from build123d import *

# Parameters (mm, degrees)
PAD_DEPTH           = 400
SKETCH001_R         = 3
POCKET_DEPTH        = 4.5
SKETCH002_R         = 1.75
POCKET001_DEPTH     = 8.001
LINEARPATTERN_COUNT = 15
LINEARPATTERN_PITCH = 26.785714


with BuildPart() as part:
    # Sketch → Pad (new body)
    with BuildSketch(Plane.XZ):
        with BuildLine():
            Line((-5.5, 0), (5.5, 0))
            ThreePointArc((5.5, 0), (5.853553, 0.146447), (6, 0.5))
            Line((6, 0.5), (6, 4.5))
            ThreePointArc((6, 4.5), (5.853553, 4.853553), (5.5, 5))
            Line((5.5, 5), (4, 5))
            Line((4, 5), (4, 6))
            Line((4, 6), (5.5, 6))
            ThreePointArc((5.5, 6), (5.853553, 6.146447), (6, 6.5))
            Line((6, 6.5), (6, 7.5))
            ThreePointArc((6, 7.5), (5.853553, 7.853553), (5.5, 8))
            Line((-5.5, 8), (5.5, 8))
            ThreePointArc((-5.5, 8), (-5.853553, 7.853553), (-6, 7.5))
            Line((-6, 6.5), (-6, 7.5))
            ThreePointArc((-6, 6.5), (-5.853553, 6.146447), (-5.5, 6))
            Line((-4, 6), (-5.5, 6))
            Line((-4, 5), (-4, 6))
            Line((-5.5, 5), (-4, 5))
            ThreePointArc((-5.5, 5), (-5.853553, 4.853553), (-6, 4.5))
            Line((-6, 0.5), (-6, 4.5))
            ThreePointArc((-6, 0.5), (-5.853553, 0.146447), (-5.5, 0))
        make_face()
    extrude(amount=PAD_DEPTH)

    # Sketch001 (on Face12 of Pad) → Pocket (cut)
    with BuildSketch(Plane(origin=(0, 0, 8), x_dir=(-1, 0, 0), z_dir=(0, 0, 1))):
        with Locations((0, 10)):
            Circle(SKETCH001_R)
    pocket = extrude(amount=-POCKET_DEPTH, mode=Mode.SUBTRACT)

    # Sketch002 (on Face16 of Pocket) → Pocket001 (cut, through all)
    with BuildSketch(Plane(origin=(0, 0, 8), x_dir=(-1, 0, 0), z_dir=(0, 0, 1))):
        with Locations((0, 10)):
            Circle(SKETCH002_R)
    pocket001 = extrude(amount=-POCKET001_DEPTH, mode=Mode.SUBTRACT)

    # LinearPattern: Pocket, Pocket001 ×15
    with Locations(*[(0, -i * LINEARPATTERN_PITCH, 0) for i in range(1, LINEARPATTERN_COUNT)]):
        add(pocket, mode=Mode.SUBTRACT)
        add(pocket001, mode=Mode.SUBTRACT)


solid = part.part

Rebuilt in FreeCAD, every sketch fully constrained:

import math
import FreeCAD as App
import Part
import Sketcher

doc = App.newDocument("Part")
body = doc.addObject("PartDesign::Body", "Body")

# Sketch on XZ plane
sketch1 = body.newObject("Sketcher::SketchObject", "Sketch")
sketch1.AttachmentSupport = (doc.getObject("XZ_Plane"), [""])
sketch1.MapMode = "FlatFace"
sketch1.addGeometry([
    Part.LineSegment(App.Vector(-5.5, 0, 0), App.Vector(5.5, 0, 0)),  # 0
    Part.ArcOfCircle(Part.Circle(App.Vector(5.499999, 0.500001, 0), App.Vector(0, 0, 1), 0.500001), math.radians(-89.999847), math.radians(-0.000153)),  # 1
    Part.LineSegment(App.Vector(6, 0.5, 0), App.Vector(6, 4.5, 0)),  # 2
    Part.ArcOfCircle(Part.Circle(App.Vector(5.499999, 4.499999, 0), App.Vector(0, 0, 1), 0.500001), math.radians(0.000153), math.radians(89.999847)),  # 3
    Part.LineSegment(App.Vector(5.5, 5, 0), App.Vector(4, 5, 0)),  # 4
    Part.LineSegment(App.Vector(4, 5, 0), App.Vector(4, 6, 0)),  # 5
    Part.LineSegment(App.Vector(4, 6, 0), App.Vector(5.5, 6, 0)),  # 6
    Part.ArcOfCircle(Part.Circle(App.Vector(5.499999, 6.500001, 0), App.Vector(0, 0, 1), 0.500001), math.radians(-89.999847), math.radians(-0.000153)),  # 7
    Part.LineSegment(App.Vector(6, 6.5, 0), App.Vector(6, 7.5, 0)),  # 8
    Part.ArcOfCircle(Part.Circle(App.Vector(5.499999, 7.499999, 0), App.Vector(0, 0, 1), 0.500001), math.radians(0.000153), math.radians(89.999847)),  # 9
    Part.LineSegment(App.Vector(5.5, 8, 0), App.Vector(-5.5, 8, 0)),  # 10
    Part.ArcOfCircle(Part.Circle(App.Vector(-5.499999, 7.499999, 0), App.Vector(0, 0, 1), 0.500001), math.radians(90.000153), math.radians(179.999847)),  # 11
    Part.LineSegment(App.Vector(-6, 7.5, 0), App.Vector(-6, 6.5, 0)),  # 12
    Part.ArcOfCircle(Part.Circle(App.Vector(-5.499999, 6.500001, 0), App.Vector(0, 0, 1), 0.500001), math.radians(-179.999847), math.radians(-90.000153)),  # 13
    Part.LineSegment(App.Vector(-5.5, 6, 0), App.Vector(-4, 6, 0)),  # 14
    Part.LineSegment(App.Vector(-4, 6, 0), App.Vector(-4, 5, 0)),  # 15
    Part.LineSegment(App.Vector(-4, 5, 0), App.Vector(-5.5, 5, 0)),  # 16
    Part.ArcOfCircle(Part.Circle(App.Vector(-5.499999, 4.499999, 0), App.Vector(0, 0, 1), 0.500001), math.radians(90.000153), math.radians(179.999847)),  # 17
    Part.LineSegment(App.Vector(-6, 4.5, 0), App.Vector(-6, 0.5, 0)),  # 18
    Part.ArcOfCircle(Part.Circle(App.Vector(-5.499999, 0.500001, 0), App.Vector(0, 0, 1), 0.500001), math.radians(-179.999847), math.radians(-90.000153)),  # 19
], False)
sketch1.addConstraint([
    Sketcher.Constraint("Coincident", 0, 2, 1, 1),
    Sketcher.Constraint("Coincident", 1, 2, 2, 1),
    Sketcher.Constraint("Coincident", 2, 2, 3, 1),
    Sketcher.Constraint("Coincident", 3, 2, 4, 1),
    Sketcher.Constraint("Coincident", 4, 2, 5, 1),
    Sketcher.Constraint("Coincident", 5, 2, 6, 1),
    Sketcher.Constraint("Coincident", 6, 2, 7, 1),
    Sketcher.Constraint("Coincident", 7, 2, 8, 1),
    Sketcher.Constraint("Coincident", 8, 2, 9, 1),
    Sketcher.Constraint("Coincident", 9, 2, 10, 1),
    Sketcher.Constraint("Coincident", 10, 2, 11, 1),
    Sketcher.Constraint("Coincident", 11, 2, 12, 1),
    Sketcher.Constraint("Coincident", 12, 2, 13, 1),
    Sketcher.Constraint("Coincident", 13, 2, 14, 1),
    Sketcher.Constraint("Coincident", 14, 2, 15, 1),
    Sketcher.Constraint("Coincident", 15, 2, 16, 1),
    Sketcher.Constraint("Coincident", 16, 2, 17, 1),
    Sketcher.Constraint("Coincident", 17, 2, 18, 1),
    Sketcher.Constraint("Coincident", 18, 2, 19, 1),
    Sketcher.Constraint("Coincident", 19, 2, 0, 1),
    Sketcher.Constraint("Horizontal", 0),
    Sketcher.Constraint("Vertical", 2),
    Sketcher.Constraint("Horizontal", 4),
    Sketcher.Constraint("Vertical", 5),
    Sketcher.Constraint("Horizontal", 6),
    Sketcher.Constraint("Vertical", 8),
    Sketcher.Constraint("Horizontal", 10),
    Sketcher.Constraint("Vertical", 12),
    Sketcher.Constraint("Horizontal", 14),
    Sketcher.Constraint("Vertical", 15),
    Sketcher.Constraint("Horizontal", 16),
    Sketcher.Constraint("Vertical", 18),
    Sketcher.Constraint("Equal", 1, 3),
    Sketcher.Constraint("Equal", 3, 7),
    Sketcher.Constraint("Equal", 7, 9),
    Sketcher.Constraint("Equal", 9, 11),
    Sketcher.Constraint("Equal", 11, 13),
    Sketcher.Constraint("Equal", 13, 17),
    Sketcher.Constraint("Equal", 17, 19),
    Sketcher.Constraint("Symmetric", 0, 2, 19, 2, -1, 1),
    Sketcher.Constraint("Symmetric", 7, 3, 13, 3, -2),
    Sketcher.Constraint("Symmetric", 3, 3, 17, 3, -2),
    Sketcher.Constraint("Horizontal", 19, 3, 1, 2),
    Sketcher.Constraint("Horizontal", 17, 3, 2, 2),
    Sketcher.Constraint("Horizontal", 13, 3, 7, 2),
    Sketcher.Constraint("Horizontal", 11, 3, 8, 2),
    Sketcher.Constraint("Horizontal", 8, 2, 11, 2),
    Sketcher.Constraint("Horizontal", 7, 2, 12, 2),
    Sketcher.Constraint("Horizontal", 2, 2, 17, 2),
    Sketcher.Constraint("Horizontal", 1, 2, 18, 2),
    Sketcher.Constraint("Vertical", 3, 3, 7, 3),
    Sketcher.Constraint("Vertical", 9, 3, 0, 2),
    Sketcher.Constraint("Vertical", 0, 2, 3, 2),
    Sketcher.Constraint("Vertical", 3, 2, 6, 2),
    Sketcher.Constraint("Vertical", 6, 2, 9, 2),
    Sketcher.Constraint("Vertical", 19, 3, 10, 2),
    Sketcher.Constraint("Vertical", 10, 2, 13, 2),
    Sketcher.Constraint("Vertical", 13, 2, 16, 2),
    Sketcher.Constraint("Equal", 6, 14),
    Sketcher.Constraint("Equal", 5, 8),
    Sketcher.Constraint("Radius", 1, 0.500001),
    Sketcher.Constraint("DistanceX", 0, 1, 0, 2, 11.0),
    Sketcher.Constraint("DistanceY", 2, 1, 2, 2, 4.0),
    Sketcher.Constraint("DistanceY", 5, 1, 5, 2, 1.0),
    Sketcher.Constraint("DistanceX", 4, 2, 4, 1, 1.5),
])
pad1 = body.newObject("PartDesign::Pad", "Pad")
pad1.Profile = sketch1
pad1.Length = 400

# Sketch on XY plane
sketch2 = body.newObject("Sketcher::SketchObject", "Sketch001")
sketch2.AttachmentSupport = (doc.getObject("XY_Plane"), [""])
sketch2.MapMode = "FlatFace"
sketch2.AttachmentOffset = App.Placement(App.Vector(0, 0, 8), App.Rotation())
sketch2.addGeometry(Part.Circle(App.Vector(0, -10, 0), App.Vector(0, 0, 1), 3), False)
sketch2.addConstraint([
    Sketcher.Constraint("PointOnObject", 0, 3, -2),
    Sketcher.Constraint("Diameter", 0, 6.0),
    Sketcher.Constraint("DistanceY", 0, 3, -1, 1, 10.0),
])
pocket1 = body.newObject("PartDesign::Pocket", "Pocket")
pocket1.Profile = sketch2
pocket1.Length = 4.5

# Sketch on XY plane
sketch3 = body.newObject("Sketcher::SketchObject", "Sketch002")
sketch3.AttachmentSupport = (doc.getObject("XY_Plane"), [""])
sketch3.MapMode = "FlatFace"
sketch3.AttachmentOffset = App.Placement(App.Vector(0, 0, 8), App.Rotation())
sketch3.addGeometry(Part.Circle(App.Vector(0, -10, 0), App.Vector(0, 0, 1), 1.75), False)
sketch3.addConstraint([
    Sketcher.Constraint("PointOnObject", 0, 3, -2),
    Sketcher.Constraint("Diameter", 0, 3.5),
    Sketcher.Constraint("DistanceY", 0, 3, -1, 1, 10.0),
])
pocket2 = body.newObject("PartDesign::Pocket", "Pocket001")
pocket2.Profile = sketch3
pocket2.Type = "ThroughAll"
doc.recompute()

linearpattern = body.newObject("PartDesign::LinearPattern", "LinearPattern")
linearpattern.Originals = [pocket1, pocket2]
linearpattern.Direction = (doc.getObject("Y_Axis"), [""])
linearpattern.Mode = "offset"
linearpattern.Offset = 26.785714
linearpattern.Occurrences = 15
linearpattern.Reversed = True
body.Tip = linearpattern

doc.recompute()
